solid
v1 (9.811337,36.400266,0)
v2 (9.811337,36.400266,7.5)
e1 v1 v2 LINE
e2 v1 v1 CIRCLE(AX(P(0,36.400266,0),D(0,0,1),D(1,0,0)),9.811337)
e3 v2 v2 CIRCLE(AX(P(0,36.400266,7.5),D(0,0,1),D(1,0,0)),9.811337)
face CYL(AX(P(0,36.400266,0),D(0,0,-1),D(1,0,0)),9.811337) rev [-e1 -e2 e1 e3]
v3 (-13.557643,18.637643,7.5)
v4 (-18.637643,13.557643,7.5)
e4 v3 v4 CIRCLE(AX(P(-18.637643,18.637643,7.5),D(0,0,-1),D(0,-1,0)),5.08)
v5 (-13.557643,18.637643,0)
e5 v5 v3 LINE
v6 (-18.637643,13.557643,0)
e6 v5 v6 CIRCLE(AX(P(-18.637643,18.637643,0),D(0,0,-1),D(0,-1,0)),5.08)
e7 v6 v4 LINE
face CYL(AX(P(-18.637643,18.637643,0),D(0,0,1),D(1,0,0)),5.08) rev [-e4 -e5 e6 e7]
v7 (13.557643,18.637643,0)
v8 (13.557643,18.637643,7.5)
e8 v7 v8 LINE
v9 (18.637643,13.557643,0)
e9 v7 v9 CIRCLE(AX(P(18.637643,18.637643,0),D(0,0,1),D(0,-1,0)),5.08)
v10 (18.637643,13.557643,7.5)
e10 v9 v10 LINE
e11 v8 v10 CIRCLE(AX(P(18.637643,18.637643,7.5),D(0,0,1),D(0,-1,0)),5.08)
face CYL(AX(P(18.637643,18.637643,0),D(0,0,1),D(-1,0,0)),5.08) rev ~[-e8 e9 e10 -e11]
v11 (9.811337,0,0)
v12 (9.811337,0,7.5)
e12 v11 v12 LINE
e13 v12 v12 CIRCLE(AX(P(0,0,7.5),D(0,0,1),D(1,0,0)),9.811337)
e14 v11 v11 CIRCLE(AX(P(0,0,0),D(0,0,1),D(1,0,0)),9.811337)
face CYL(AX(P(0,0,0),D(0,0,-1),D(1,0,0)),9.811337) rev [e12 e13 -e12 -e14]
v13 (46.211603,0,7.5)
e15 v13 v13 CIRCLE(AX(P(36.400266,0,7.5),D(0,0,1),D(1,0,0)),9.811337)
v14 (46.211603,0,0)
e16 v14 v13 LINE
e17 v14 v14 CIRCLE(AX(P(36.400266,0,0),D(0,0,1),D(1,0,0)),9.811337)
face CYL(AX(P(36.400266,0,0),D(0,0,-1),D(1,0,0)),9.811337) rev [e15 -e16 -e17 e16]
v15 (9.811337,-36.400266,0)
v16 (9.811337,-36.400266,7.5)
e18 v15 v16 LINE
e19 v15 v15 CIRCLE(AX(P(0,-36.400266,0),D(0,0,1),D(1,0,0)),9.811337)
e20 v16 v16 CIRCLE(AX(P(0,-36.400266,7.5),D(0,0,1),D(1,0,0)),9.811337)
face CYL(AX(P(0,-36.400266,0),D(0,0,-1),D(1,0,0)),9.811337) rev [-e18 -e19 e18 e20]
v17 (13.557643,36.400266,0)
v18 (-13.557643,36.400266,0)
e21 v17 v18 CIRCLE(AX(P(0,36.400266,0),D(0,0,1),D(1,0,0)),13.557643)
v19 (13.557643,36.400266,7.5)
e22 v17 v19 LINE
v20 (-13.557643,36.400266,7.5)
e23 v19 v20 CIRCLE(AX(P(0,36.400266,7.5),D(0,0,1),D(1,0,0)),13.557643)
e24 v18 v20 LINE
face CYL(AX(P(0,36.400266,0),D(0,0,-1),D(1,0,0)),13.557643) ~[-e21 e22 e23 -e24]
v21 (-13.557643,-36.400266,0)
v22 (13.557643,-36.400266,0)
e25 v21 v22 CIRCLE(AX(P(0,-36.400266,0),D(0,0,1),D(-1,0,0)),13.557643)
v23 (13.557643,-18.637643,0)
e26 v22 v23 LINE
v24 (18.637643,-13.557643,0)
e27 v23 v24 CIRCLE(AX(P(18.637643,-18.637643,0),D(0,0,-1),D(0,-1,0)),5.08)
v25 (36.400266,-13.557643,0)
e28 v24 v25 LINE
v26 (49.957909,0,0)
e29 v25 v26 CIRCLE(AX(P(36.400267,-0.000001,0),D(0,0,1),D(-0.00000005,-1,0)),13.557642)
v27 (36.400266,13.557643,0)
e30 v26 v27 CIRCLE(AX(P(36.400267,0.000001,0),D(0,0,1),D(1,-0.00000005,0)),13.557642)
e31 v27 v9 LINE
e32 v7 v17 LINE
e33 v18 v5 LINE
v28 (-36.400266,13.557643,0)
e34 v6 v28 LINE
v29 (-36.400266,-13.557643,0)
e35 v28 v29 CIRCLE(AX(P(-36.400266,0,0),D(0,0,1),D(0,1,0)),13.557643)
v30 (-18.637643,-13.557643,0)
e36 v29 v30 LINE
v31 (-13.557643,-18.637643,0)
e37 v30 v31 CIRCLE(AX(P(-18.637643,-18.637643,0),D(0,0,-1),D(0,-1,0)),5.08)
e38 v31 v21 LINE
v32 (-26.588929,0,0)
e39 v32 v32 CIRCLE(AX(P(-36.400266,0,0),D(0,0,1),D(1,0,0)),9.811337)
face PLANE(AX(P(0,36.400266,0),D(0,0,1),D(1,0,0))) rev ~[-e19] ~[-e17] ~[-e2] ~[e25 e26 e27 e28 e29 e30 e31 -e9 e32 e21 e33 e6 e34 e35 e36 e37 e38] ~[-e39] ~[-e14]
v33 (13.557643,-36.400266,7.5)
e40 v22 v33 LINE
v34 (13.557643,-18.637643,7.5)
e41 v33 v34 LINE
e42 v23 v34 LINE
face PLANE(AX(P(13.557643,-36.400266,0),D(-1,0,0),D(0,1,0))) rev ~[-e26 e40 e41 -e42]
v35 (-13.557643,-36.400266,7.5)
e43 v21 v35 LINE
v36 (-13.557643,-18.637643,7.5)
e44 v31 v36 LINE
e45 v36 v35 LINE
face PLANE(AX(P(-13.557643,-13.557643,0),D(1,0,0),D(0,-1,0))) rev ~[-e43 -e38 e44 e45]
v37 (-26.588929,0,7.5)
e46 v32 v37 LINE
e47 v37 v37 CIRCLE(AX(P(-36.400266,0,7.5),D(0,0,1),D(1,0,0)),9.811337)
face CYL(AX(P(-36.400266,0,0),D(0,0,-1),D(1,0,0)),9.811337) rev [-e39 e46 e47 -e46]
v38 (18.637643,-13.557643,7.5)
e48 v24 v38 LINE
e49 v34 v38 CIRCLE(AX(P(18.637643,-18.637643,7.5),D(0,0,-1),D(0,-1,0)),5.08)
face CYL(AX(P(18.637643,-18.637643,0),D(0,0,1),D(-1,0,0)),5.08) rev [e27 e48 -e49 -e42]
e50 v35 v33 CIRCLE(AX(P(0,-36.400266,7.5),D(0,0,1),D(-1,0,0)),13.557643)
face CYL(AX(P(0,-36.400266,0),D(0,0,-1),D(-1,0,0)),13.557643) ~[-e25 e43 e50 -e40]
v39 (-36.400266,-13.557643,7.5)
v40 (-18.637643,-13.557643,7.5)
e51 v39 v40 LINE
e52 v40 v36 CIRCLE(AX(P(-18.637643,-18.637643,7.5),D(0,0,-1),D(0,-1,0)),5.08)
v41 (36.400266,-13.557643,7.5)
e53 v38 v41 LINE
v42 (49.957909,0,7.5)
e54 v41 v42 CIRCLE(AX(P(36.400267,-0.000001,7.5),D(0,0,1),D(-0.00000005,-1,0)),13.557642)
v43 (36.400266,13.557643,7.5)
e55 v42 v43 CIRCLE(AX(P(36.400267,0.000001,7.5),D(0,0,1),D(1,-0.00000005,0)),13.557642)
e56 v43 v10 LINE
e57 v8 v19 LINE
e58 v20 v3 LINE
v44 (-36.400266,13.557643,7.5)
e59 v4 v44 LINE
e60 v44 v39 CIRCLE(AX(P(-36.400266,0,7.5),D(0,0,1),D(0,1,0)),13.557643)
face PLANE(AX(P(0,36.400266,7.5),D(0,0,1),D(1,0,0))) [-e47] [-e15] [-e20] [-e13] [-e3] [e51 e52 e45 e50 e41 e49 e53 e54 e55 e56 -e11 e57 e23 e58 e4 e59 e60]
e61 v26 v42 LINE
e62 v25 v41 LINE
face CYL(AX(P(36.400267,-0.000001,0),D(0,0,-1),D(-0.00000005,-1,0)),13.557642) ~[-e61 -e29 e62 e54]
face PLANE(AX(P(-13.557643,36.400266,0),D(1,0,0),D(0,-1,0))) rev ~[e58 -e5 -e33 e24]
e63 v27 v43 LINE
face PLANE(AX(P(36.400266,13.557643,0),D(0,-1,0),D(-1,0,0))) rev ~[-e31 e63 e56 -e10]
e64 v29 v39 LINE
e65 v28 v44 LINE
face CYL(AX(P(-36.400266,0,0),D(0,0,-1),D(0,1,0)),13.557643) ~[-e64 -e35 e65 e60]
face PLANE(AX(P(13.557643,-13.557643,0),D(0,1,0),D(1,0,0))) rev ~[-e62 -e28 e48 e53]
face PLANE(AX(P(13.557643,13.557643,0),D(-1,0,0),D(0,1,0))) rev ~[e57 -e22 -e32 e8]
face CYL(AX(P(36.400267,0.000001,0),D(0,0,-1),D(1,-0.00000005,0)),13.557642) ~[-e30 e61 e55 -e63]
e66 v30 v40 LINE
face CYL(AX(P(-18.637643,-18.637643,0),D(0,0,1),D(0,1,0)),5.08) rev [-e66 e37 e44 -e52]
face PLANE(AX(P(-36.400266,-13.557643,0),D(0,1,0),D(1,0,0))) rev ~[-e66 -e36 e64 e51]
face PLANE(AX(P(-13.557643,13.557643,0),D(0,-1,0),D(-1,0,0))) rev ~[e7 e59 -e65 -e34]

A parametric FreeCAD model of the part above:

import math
import FreeCAD as App
import Part
import Sketcher

V = App.Vector
Q = App.Units.Quantity


def edges_at(feature, points):
    """Names of the edges that pass closest to the given points."""
    edges = feature.Shape.Edges
    near = lambda p: min(range(len(edges)), key=lambda i: edges[i].distToShape(Part.Vertex(*p))[0])
    return sorted({f"Edge{near(p) + 1}" for p in points})

doc = App.newDocument("Part")
body = doc.addObject("PartDesign::Body", "Body")

# Sketch on XY plane
sketch1 = doc.addObject("Sketcher::SketchObject", "Sketch")
body.addObject(sketch1)
sketch1.AttachmentSupport = (doc.XY_Plane, [""])
sketch1.MapMode = "FlatFace"
sketch1.addGeometry(Part.ArcOfCircle(Part.Circle(V(0, 36, 0), V(0, 0, 1), 14), math.radians(0), math.radians(180)), False)
sketch1.addGeometry(Part.LineSegment(V(-14, 36, 0), V(-14, 14, 0)), False)
sketch1.addGeometry(Part.LineSegment(V(-14, 14, 0), V(-36, 14, 0)), False)
sketch1.addGeometry(Part.ArcOfCircle(Part.Circle(V(-36, 0, 0), V(0, 0, 1), 14), math.radians(90), math.radians(270)), False)
sketch1.addGeometry(Part.LineSegment(V(-36, -14, 0), V(-14, -14, 0)), False)
sketch1.addGeometry(Part.LineSegment(V(-14, -14, 0), V(-14, -36, 0)), False)
sketch1.addGeometry(Part.ArcOfCircle(Part.Circle(V(0, -36, 0), V(0, 0, 1), 14), math.radians(180), math.radians(360)), False)
sketch1.addGeometry(Part.LineSegment(V(14, -36, 0), V(14, -14, 0)), False)
sketch1.addGeometry(Part.LineSegment(V(14, -14, 0), V(36, -14, 0)), False)
sketch1.addGeometry(Part.ArcOfCircle(Part.Circle(V(36, 0, 0), V(0, 0, 1), 14), math.radians(-90), math.radians(0)), False)
sketch1.addGeometry(Part.ArcOfCircle(Part.Circle(V(36, 0, 0), V(0, 0, 1), 14), math.radians(0), math.radians(90)), False)
sketch1.addGeometry(Part.LineSegment(V(36, 14, 0), V(14, 14, 0)), False)
sketch1.addGeometry(Part.LineSegment(V(14, 14, 0), V(14, 36, 0)), False)
sketch1.addGeometry(Part.Circle(V(0, -36, 0), V(0, 0, 1), 10), False)
sketch1.addGeometry(Part.Circle(V(-36, 0, 0), V(0, 0, 1), 10), False)
sketch1.addGeometry(Part.Circle(V(0, 0, 0), V(0, 0, 1), 10), False)
sketch1.addGeometry(Part.Circle(V(36, 0, 0), V(0, 0, 1), 10), False)
sketch1.addGeometry(Part.Circle(V(0, 36, 0), V(0, 0, 1), 10), False)
sketch1.addConstraint(Sketcher.Constraint("Tangent", 0, 2, 1, 1))
sketch1.addConstraint(Sketcher.Constraint("Coincident", 1, 2, 2, 1))
sketch1.addConstraint(Sketcher.Constraint("Tangent", 2, 2, 3, 1))
sketch1.addConstraint(Sketcher.Constraint("Tangent", 3, 2, 4, 1))
sketch1.addConstraint(Sketcher.Constraint("Coincident", 4, 2, 5, 1))
sketch1.addConstraint(Sketcher.Constraint("Tangent", 5, 2, 6, 1))
sketch1.addConstraint(Sketcher.Constraint("Tangent", 6, 2, 7, 1))
sketch1.addConstraint(Sketcher.Constraint("Coincident", 7, 2, 8, 1))
sketch1.addConstraint(Sketcher.Constraint("Tangent", 8, 2, 9, 1))
sketch1.addConstraint(Sketcher.Constraint("Tangent", 9, 2, 10, 1))
sketch1.addConstraint(Sketcher.Constraint("Tangent", 10, 2, 11, 1))
sketch1.addConstraint(Sketcher.Constraint("Coincident", 11, 2, 12, 1))
sketch1.addConstraint(Sketcher.Constraint("Tangent", 12, 2, 0, 1))
sketch1.addConstraint(Sketcher.Constraint("Vertical", 1))
sketch1.addConstraint(Sketcher.Constraint("Horizontal", 2))
sketch1.addConstraint(Sketcher.Constraint("Horizontal", 4))
sketch1.addConstraint(Sketcher.Constraint("Vertical", 5))
sketch1.addConstraint(Sketcher.Constraint("Vertical", 7))
sketch1.addConstraint(Sketcher.Constraint("Horizontal", 8))
sketch1.addConstraint(Sketcher.Constraint("Horizontal", 11))
sketch1.addConstraint(Sketcher.Constraint("Vertical", 12))
sketch1.addConstraint(Sketcher.Constraint("Coincident", 15, 3, -1, 1))
sketch1.addConstraint(Sketcher.Constraint("Coincident", 13, 3, 6, 3))
sketch1.addConstraint(Sketcher.Constraint("Coincident", 14, 3, 3, 3))
sketch1.addConstraint(Sketcher.Constraint("Coincident", 16, 3, 9, 3))
sketch1.addConstraint(Sketcher.Constraint("Coincident", 17, 3, 0, 3))
sketch1.addConstraint(Sketcher.Constraint("Equal", 0, 3))
sketch1.addConstraint(Sketcher.Constraint("Equal", 3, 6))
sketch1.addConstraint(Sketcher.Constraint("Equal", 6, 9))
sketch1.addConstraint(Sketcher.Constraint("Equal", 9, 10))
sketch1.addConstraint(Sketcher.Constraint("Equal", 13, 14))
sketch1.addConstraint(Sketcher.Constraint("Equal", 14, 15))
sketch1.addConstraint(Sketcher.Constraint("Equal", 15, 16))
sketch1.addConstraint(Sketcher.Constraint("Equal", 16, 17))
sketch1.addConstraint(Sketcher.Constraint("Symmetric", 0, 3, 6, 3, -1, 1))
sketch1.addConstraint(Sketcher.Constraint("Symmetric", 3, 3, 9, 3, -1, 1))
sketch1.addConstraint(Sketcher.Constraint("Symmetric", 4, 2, 7, 2, -2))
sketch1.addConstraint(Sketcher.Constraint("PointOnObject", 9, 2, -1))
sketch1.addConstraint(Sketcher.Constraint("Equal", 11, 1))
sketch1.addConstraint(Sketcher.Constraint("Diameter", 13, Q("19.622674 mm")))
sketch1.addConstraint(Sketcher.Constraint("Radius", 0, Q("13.557643 mm")))
sketch1.addConstraint(Sketcher.Constraint("DistanceX", 2, 2, 2, 1, Q("22.842623 mm")))
pad1 = doc.addObject("PartDesign::Pad", "Pad")
body.addObject(pad1)
pad1.Profile = sketch1
pad1.Length = 7.5
doc.recompute()

fillet = doc.addObject("PartDesign::Fillet", "Fillet")
body.addObject(fillet)
fillet.Base = (pad1, edges_at(pad1, [(-13.558, 13.558, 3.75)]))
fillet.Radius = 5.08
doc.recompute()

fillet2 = doc.addObject("PartDesign::Fillet", "Fillet001")
body.addObject(fillet2)
fillet2.Base = (fillet, edges_at(fillet, [(13.558, 13.558, 3.75)]))
fillet2.Radius = 5.08
doc.recompute()

fillet3 = doc.addObject("PartDesign::Fillet", "Fillet002")
body.addObject(fillet3)
fillet3.Base = (fillet2, edges_at(fillet2, [(-13.558, -13.558, 3.75)]))
fillet3.Radius = 5.08
doc.recompute()

fillet4 = doc.addObject("PartDesign::Fillet", "Fillet003")
body.addObject(fillet4)
fillet4.Base = (fillet3, edges_at(fillet3, [(13.558, -13.558, 3.75)]))
fillet4.Radius = 5.08

doc.recompute()
